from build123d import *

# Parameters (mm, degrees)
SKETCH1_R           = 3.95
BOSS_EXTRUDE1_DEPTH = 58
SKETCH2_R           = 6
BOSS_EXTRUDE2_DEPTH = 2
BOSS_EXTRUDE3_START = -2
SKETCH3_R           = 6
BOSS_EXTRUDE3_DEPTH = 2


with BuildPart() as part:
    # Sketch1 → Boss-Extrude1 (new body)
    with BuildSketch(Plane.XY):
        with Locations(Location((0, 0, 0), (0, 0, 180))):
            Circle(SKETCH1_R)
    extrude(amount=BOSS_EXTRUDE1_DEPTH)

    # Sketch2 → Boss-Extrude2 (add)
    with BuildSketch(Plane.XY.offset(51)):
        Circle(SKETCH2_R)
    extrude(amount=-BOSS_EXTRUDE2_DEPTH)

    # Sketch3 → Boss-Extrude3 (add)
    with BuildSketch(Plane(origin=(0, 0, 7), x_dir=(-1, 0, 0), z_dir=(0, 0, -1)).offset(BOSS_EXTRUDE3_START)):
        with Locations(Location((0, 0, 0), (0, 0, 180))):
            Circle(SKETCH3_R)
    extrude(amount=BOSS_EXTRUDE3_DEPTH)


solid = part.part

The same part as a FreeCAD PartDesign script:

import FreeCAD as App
import Part
import Sketcher

V = App.Vector

doc = App.newDocument("Part")
body = doc.addObject("PartDesign::Body", "Body")

# Sketch on XY plane
sketch1 = doc.addObject("Sketcher::SketchObject", "Sketch")
body.addObject(sketch1)
sketch1.AttachmentSupport = (doc.XY_Plane, [""])
sketch1.MapMode = "FlatFace"
sketch1.addGeometry(Part.Circle(V(0, 0, 0), V(0, 0, 1), 4), False)
sketch1.addConstraint([
    Sketcher.Constraint("Coincident", 0, 3, -1, 1),
    Sketcher.Constraint("Diameter", 0, 7.9),
])
pad1 = doc.addObject("PartDesign::Pad", "Pad")
body.addObject(pad1)
pad1.Profile = sketch1
pad1.Length = 58

# Sketch on XY plane
sketch2 = doc.addObject("Sketcher::SketchObject", "Sketch001")
body.addObject(sketch2)
sketch2.AttachmentSupport = (doc.XY_Plane, [""])
sketch2.MapMode = "FlatFace"
sketch2.AttachmentOffset = App.Placement(V(0, 0, 51), App.Rotation())
sketch2.addGeometry(Part.Circle(V(0, 0, 0), V(0, 0, 1), 6), False)
sketch2.addConstraint([
    Sketcher.Constraint("Coincident", 0, 3, -1, 1),
    Sketcher.Constraint("Diameter", 0, 12.0),
])
pad2 = doc.addObject("PartDesign::Pad", "Pad001")
body.addObject(pad2)
pad2.Profile = sketch2
pad2.Length = 2
pad2.Reversed = True

# Sketch on XY plane
sketch3 = doc.addObject("Sketcher::SketchObject", "Sketch002")
body.addObject(sketch3)
sketch3.AttachmentSupport = (doc.XY_Plane, [""])
sketch3.MapMode = "FlatFace"
sketch3.AttachmentOffset = App.Placement(V(0, 0, 9), App.Rotation())
sketch3.addGeometry(Part.Circle(V(0, 0, 0), V(0, 0, 1), 6), False)
sketch3.addConstraint([
    Sketcher.Constraint("Coincident", 0, 3, -1, 1),
    Sketcher.Constraint("Diameter", 0, 12.0),
])
pad3 = doc.addObject("PartDesign::Pad", "Pad002")
body.addObject(pad3)
pad3.Profile = sketch3
pad3.Length = 2
pad3.Reversed = True

doc.recompute()
